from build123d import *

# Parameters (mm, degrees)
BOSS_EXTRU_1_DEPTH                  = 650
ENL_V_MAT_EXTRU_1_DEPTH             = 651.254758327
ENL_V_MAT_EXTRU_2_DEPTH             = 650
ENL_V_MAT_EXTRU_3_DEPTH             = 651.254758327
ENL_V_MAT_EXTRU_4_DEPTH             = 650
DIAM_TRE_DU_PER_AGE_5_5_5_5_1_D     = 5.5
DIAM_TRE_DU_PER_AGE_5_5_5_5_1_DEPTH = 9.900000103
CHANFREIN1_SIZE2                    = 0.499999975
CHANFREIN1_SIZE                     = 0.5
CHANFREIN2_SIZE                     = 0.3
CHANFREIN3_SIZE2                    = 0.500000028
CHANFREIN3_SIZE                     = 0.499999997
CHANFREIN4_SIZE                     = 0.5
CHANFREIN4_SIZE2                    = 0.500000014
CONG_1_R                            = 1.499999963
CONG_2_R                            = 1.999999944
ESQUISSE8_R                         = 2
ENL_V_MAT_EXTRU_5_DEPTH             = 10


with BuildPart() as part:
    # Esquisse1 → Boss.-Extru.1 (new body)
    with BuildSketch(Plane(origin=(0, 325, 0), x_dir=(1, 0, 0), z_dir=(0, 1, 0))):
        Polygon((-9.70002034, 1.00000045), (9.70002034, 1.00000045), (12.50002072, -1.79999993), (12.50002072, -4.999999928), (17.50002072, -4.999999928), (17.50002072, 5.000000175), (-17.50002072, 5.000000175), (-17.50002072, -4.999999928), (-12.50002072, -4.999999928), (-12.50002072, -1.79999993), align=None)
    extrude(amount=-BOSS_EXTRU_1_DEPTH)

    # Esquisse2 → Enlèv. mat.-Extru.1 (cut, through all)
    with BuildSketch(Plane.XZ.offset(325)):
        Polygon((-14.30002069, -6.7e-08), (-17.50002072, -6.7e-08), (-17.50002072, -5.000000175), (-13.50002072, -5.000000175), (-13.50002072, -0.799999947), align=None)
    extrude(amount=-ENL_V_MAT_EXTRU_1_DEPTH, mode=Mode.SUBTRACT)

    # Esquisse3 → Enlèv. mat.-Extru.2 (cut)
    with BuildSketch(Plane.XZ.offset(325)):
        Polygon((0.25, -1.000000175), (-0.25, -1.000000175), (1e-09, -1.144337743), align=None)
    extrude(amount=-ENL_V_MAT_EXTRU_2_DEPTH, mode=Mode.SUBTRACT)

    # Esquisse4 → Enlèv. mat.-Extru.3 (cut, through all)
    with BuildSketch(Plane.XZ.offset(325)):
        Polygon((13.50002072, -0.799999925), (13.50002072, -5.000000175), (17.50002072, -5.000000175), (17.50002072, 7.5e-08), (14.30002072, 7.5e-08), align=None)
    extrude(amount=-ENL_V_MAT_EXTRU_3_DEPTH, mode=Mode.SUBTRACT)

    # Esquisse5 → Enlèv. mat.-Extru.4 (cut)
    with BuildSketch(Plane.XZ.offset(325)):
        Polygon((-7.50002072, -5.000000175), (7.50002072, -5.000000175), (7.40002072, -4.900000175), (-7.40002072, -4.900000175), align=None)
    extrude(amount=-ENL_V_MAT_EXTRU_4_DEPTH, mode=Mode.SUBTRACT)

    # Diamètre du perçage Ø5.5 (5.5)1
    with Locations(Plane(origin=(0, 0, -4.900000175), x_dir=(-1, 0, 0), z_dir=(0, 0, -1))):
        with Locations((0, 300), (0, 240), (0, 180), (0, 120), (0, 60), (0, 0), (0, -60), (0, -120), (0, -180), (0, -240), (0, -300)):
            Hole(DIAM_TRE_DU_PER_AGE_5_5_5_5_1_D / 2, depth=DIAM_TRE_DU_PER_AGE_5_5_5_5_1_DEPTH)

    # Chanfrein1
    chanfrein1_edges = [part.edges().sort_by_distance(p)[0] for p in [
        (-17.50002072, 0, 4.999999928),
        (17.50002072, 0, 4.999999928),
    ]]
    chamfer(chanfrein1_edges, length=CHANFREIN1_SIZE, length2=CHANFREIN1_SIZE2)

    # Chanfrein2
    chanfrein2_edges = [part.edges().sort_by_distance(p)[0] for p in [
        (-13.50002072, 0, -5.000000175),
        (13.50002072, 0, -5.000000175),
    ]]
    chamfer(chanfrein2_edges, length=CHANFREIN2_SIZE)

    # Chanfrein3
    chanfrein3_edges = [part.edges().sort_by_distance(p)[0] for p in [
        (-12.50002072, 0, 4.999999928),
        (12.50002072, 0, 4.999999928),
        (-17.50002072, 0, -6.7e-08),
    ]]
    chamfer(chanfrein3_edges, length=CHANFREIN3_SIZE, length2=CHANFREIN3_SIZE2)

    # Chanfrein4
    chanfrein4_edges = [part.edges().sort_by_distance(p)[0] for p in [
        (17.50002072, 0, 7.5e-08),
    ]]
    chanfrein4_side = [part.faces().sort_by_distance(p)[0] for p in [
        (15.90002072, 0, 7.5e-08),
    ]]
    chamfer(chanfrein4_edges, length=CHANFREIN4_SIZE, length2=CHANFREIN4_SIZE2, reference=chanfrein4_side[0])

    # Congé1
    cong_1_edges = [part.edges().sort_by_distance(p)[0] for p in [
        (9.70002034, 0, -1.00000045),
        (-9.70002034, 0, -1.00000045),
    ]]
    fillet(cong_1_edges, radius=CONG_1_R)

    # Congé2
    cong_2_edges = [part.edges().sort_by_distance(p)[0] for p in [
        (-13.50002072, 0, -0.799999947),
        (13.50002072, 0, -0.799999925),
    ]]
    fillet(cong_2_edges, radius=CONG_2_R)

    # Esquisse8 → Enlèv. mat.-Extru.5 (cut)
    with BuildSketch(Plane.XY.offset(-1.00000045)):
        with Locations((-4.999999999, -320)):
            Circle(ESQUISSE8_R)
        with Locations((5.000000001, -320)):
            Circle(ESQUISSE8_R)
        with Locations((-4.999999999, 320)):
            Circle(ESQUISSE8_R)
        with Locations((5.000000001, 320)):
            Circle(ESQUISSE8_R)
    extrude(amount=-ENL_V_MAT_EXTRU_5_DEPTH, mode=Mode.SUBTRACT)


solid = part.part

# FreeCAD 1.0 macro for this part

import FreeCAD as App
import Part
import Sketcher
from FreeCAD import Vector
Q = App.Units.Quantity


def edges_at(feature, points):
    """Names of the edges that pass closest to the given points."""
    edges = feature.Shape.Edges
    near = lambda p: min(range(len(edges)), key=lambda i: edges[i].distToShape(Part.Vertex(*p))[0])
    return sorted({f"Edge{near(p) + 1}" for p in points})

doc = App.newDocument("Part")
body = doc.addObject("PartDesign::Body", "Body")

# Sketch on XZ plane
sketch1 = body.newObject("Sketcher::SketchObject", "Sketch")
sketch1.AttachmentSupport = (doc.getObject("XZ_Plane"), [""])
sketch1.MapMode = "FlatFace"
sketch1.AttachmentOffset = App.Placement(Vector(0, 0, -325), App.Rotation())
sketch1.addGeometry(Part.LineSegment(Vector(-9.7, -1, 0), Vector(9.7, -1, 0)), False)
sketch1.addGeometry(Part.LineSegment(Vector(9.7, -1, 0), Vector(12.5, 1.8, 0)), False)
sketch1.addGeometry(Part.LineSegment(Vector(12.5, 1.8, 0), Vector(12.5, 5, 0)), False)
sketch1.addGeometry(Part.LineSegment(Vector(12.5, 5, 0), Vector(17.5, 5, 0)), False)
sketch1.addGeometry(Part.LineSegment(Vector(17.5, 5, 0), Vector(17.5, -5, 0)), False)
sketch1.addGeometry(Part.LineSegment(Vector(17.5, -5, 0), Vector(-17.5, -5, 0)), False)
sketch1.addGeometry(Part.LineSegment(Vector(-17.5, -5, 0), Vector(-17.5, 5, 0)), False)
sketch1.addGeometry(Part.LineSegment(Vector(-17.5, 5, 0), Vector(-12.5, 5, 0)), False)
sketch1.addGeometry(Part.LineSegment(Vector(-12.5, 5, 0), Vector(-12.5, 1.8, 0)), False)
sketch1.addGeometry(Part.LineSegment(Vector(-12.5, 1.8, 0), Vector(-9.7, -1, 0)), False)
sketch1.addConstraint(Sketcher.Constraint("Coincident", 0, 2, 1, 1))
sketch1.addConstraint(Sketcher.Constraint("Coincident", 1, 2, 2, 1))
sketch1.addConstraint(Sketcher.Constraint("Coincident", 2, 2, 3, 1))
sketch1.addConstraint(Sketcher.Constraint("Coincident", 3, 2, 4, 1))
sketch1.addConstraint(Sketcher.Constraint("Coincident", 4, 2, 5, 1))
sketch1.addConstraint(Sketcher.Constraint("Coincident", 5, 2, 6, 1))
sketch1.addConstraint(Sketcher.Constraint("Coincident", 6, 2, 7, 1))
sketch1.addConstraint(Sketcher.Constraint("Coincident", 7, 2, 8, 1))
sketch1.addConstraint(Sketcher.Constraint("Coincident", 8, 2, 9, 1))
sketch1.addConstraint(Sketcher.Constraint("Coincident", 9, 2, 0, 1))
sketch1.addConstraint(Sketcher.Constraint("Horizontal", 0))
sketch1.addConstraint(Sketcher.Constraint("Vertical", 2))
sketch1.addConstraint(Sketcher.Constraint("Horizontal", 3))
sketch1.addConstraint(Sketcher.Constraint("Vertical", 4))
sketch1.addConstraint(Sketcher.Constraint("Horizontal", 5))
sketch1.addConstraint(Sketcher.Constraint("Vertical", 6))
sketch1.addConstraint(Sketcher.Constraint("Horizontal", 7))
sketch1.addConstraint(Sketcher.Constraint("Vertical", 8))
sketch1.addConstraint(Sketcher.Constraint("Symmetric", 3, 2, 5, 2, -1, 1))
sketch1.addConstraint(Sketcher.Constraint("Symmetric", 2, 2, 7, 2, -2))
sketch1.addConstraint(Sketcher.Constraint("Perpendicular", 1, 9))
sketch1.addConstraint(Sketcher.Constraint("Horizontal", 1, 2, 8, 2))
sketch1.addConstraint(Sketcher.Constraint("Equal", 1, 9))
sketch1.addConstraint(Sketcher.Constraint("DistanceX", 3, 1, 3, 2, 5.0))
sketch1.addConstraint(Sketcher.Constraint("DistanceY", 4, 2, 4, 1, 10.0))
sketch1.addConstraint(Sketcher.Constraint("DistanceY", 2, 1, 2, 2, 3.2))
sketch1.addConstraint(Sketcher.Constraint("DistanceY", 0, 2, -1, 1, 1.0))
sketch1.addConstraint(Sketcher.Constraint("DistanceX", 0, 1, 0, 2, 19.400041))
pad1 = body.newObject("PartDesign::Pad", "Pad")
pad1.Profile = sketch1
pad1.Length = 650

# Sketch on XZ plane
sketch2 = body.newObject("Sketcher::SketchObject", "Sketch001")
sketch2.AttachmentSupport = (doc.getObject("XZ_Plane"), [""])
sketch2.MapMode = "FlatFace"
sketch2.AttachmentOffset = App.Placement(Vector(0, 0, 325), App.Rotation())
sketch2.addGeometry(Part.LineSegment(Vector(-14.300021, 0, 0), Vector(-17.500021, 0, 0)), False)
sketch2.addGeometry(Part.LineSegment(Vector(-17.500021, 0, 0), Vector(-17.500021, -5, 0)), False)
sketch2.addGeometry(Part.LineSegment(Vector(-17.500021, -5, 0), Vector(-13.500021, -5, 0)), False)
sketch2.addGeometry(Part.LineSegment(Vector(-13.500021, -5, 0), Vector(-13.500021, -0.8, 0)), False)
sketch2.addGeometry(Part.LineSegment(Vector(-13.500021, -0.8, 0), Vector(-14.300021, 0, 0)), False)
sketch2.addConstraint(Sketcher.Constraint("Coincident", 0, 2, 1, 1))
sketch2.addConstraint(Sketcher.Constraint("Coincident", 1, 2, 2, 1))
sketch2.addConstraint(Sketcher.Constraint("Coincident", 2, 2, 3, 1))
sketch2.addConstraint(Sketcher.Constraint("Coincident", 3, 2, 4, 1))
sketch2.addConstraint(Sketcher.Constraint("Coincident", 4, 2, 0, 1))
sketch2.addConstraint(Sketcher.Constraint("Horizontal", 0))
sketch2.addConstraint(Sketcher.Constraint("Vertical", 1))
sketch2.addConstraint(Sketcher.Constraint("Horizontal", 2))
sketch2.addConstraint(Sketcher.Constraint("Vertical", 3))
sketch2.addConstraint(Sketcher.Constraint("PointOnObject", 0, 2, -1))
sketch2.addConstraint(Sketcher.Constraint("DistanceX", 2, 1, 2, 2, 4.0))
sketch2.addConstraint(Sketcher.Constraint("DistanceY", 1, 2, 1, 1, 5.0))
sketch2.addConstraint(Sketcher.Constraint("Angle", 4, Q("135.000003 deg")))
sketch2.addConstraint(Sketcher.Constraint("DistanceX", 0, 2, 0, 1, 3.2))
sketch2.addConstraint(Sketcher.Constraint("DistanceX", 0, 2, -1, 1, 17.500021))
pocket1 = body.newObject("PartDesign::Pocket", "Pocket")
pocket1.Profile = sketch2
pocket1.Type = "ThroughAll"

# Sketch on XZ plane
sketch3 = body.newObject("Sketcher::SketchObject", "Sketch002")
sketch3.AttachmentSupport = (doc.getObject("XZ_Plane"), [""])
sketch3.MapMode = "FlatFace"
sketch3.AttachmentOffset = App.Placement(Vector(0, 0, 325), App.Rotation())
sketch3.addGeometry(Part.LineSegment(Vector(0.25, -1, 0), Vector(-0.25, -1, 0)), False)
sketch3.addGeometry(Part.LineSegment(Vector(-0.25, -1, 0), Vector(0, -1.14, 0)), False)
sketch3.addGeometry(Part.LineSegment(Vector(0, -1.14, 0), Vector(0.25, -1, 0)), False)
sketch3.addConstraint(Sketcher.Constraint("Coincident", 0, 2, 1, 1))
sketch3.addConstraint(Sketcher.Constraint("Coincident", 1, 2, 2, 1))
sketch3.addConstraint(Sketcher.Constraint("Coincident", 2, 2, 0, 1))
sketch3.addConstraint(Sketcher.Constraint("Horizontal", 0))
sketch3.addConstraint(Sketcher.Constraint("PointOnObject", 1, 2, -2))
sketch3.addConstraint(Sketcher.Constraint("Equal", 1, 2))
sketch3.addConstraint(Sketcher.Constraint("Angle", 1, Q("-30 deg")))
sketch3.addConstraint(Sketcher.Constraint("DistanceX", 0, 2, 0, 1, 0.5))
sketch3.addConstraint(Sketcher.Constraint("DistanceY", 0, 2, -1, 1, 1.0))
pocket2 = body.newObject("PartDesign::Pocket", "Pocket001")
pocket2.Profile = sketch3
pocket2.Length = 650

# Sketch on XZ plane
sketch4 = body.newObject("Sketcher::SketchObject", "Sketch003")
sketch4.AttachmentSupport = (doc.getObject("XZ_Plane"), [""])
sketch4.MapMode = "FlatFace"
sketch4.AttachmentOffset = App.Placement(Vector(0, 0, 325), App.Rotation())
sketch4.addGeometry(Part.LineSegment(Vector(13.500021, -0.8, 0), Vector(13.500021, -5, 0)), False)
sketch4.addGeometry(Part.LineSegment(Vector(13.500021, -5, 0), Vector(17.500021, -5, 0)), False)
sketch4.addGeometry(Part.LineSegment(Vector(17.500021, -5, 0), Vector(17.500021, 0, 0)), False)
sketch4.addGeometry(Part.LineSegment(Vector(17.500021, 0, 0), Vector(14.300021, 0, 0)), False)
sketch4.addGeometry(Part.LineSegment(Vector(14.300021, 0, 0), Vector(13.500021, -0.8, 0)), False)
sketch4.addConstraint(Sketcher.Constraint("Coincident", 0, 2, 1, 1))
sketch4.addConstraint(Sketcher.Constraint("Coincident", 1, 2, 2, 1))
sketch4.addConstraint(Sketcher.Constraint("Coincident", 2, 2, 3, 1))
sketch4.addConstraint(Sketcher.Constraint("Coincident", 3, 2, 4, 1))
sketch4.addConstraint(Sketcher.Constraint("Coincident", 4, 2, 0, 1))
sketch4.addConstraint(Sketcher.Constraint("Vertical", 0))
sketch4.addConstraint(Sketcher.Constraint("Horizontal", 1))
sketch4.addConstraint(Sketcher.Constraint("Vertical", 2))
sketch4.addConstraint(Sketcher.Constraint("Horizontal", 3))
sketch4.addConstraint(Sketcher.Constraint("PointOnObject", 2, 2, -1))
sketch4.addConstraint(Sketcher.Constraint("DistanceX", 1, 1, 1, 2, 4.0))
sketch4.addConstraint(Sketcher.Constraint("DistanceY", 2, 1, 2, 2, 5.0))
sketch4.addConstraint(Sketcher.Constraint("Angle", 4, Q("-135 deg")))
sketch4.addConstraint(Sketcher.Constraint("DistanceX", 3, 2, 3, 1, 3.2))
sketch4.addConstraint(Sketcher.Constraint("DistanceX", -1, 1, 0, 2, 13.500021))
pocket3 = body.newObject("PartDesign::Pocket", "Pocket002")
pocket3.Profile = sketch4
pocket3.Type = "ThroughAll"

# Sketch on XZ plane
sketch5 = body.newObject("Sketcher::SketchObject", "Sketch004")
sketch5.AttachmentSupport = (doc.getObject("XZ_Plane"), [""])
sketch5.MapMode = "FlatFace"
sketch5.AttachmentOffset = App.Placement(Vector(0, 0, 325), App.Rotation())
sketch5.addGeometry(Part.LineSegment(Vector(-7.5, -5, 0), Vector(7.5, -5, 0)), False)
sketch5.addGeometry(Part.LineSegment(Vector(7.5, -5, 0), Vector(7.4, -4.9, 0)), False)
sketch5.addGeometry(Part.LineSegment(Vector(7.4, -4.9, 0), Vector(-7.4, -4.9, 0)), False)
sketch5.addGeometry(Part.LineSegment(Vector(-7.4, -4.9, 0), Vector(-7.5, -5, 0)), False)
sketch5.addConstraint(Sketcher.Constraint("Coincident", 0, 2, 1, 1))
sketch5.addConstraint(Sketcher.Constraint("Coincident", 1, 2, 2, 1))
sketch5.addConstraint(Sketcher.Constraint("Coincident", 2, 2, 3, 1))
sketch5.addConstraint(Sketcher.Constraint("Coincident", 3, 2, 0, 1))
sketch5.addConstraint(Sketcher.Constraint("Horizontal", 0))
sketch5.addConstraint(Sketcher.Constraint("Horizontal", 2))
sketch5.addConstraint(Sketcher.Constraint("Perpendicular", 1, 3))
sketch5.addConstraint(Sketcher.Constraint("Equal", 1, 3))
sketch5.addConstraint(Sketcher.Constraint("DistanceY", 0, 2, -1, 1, 5.0))
sketch5.addConstraint(Sketcher.Constraint("DistanceY", 1, 2, -1, 1, 4.9))
sketch5.addConstraint(Sketcher.Constraint("DistanceX", 0, 1, 0, 2, 15.000041))
sketch5.addConstraint(Sketcher.Constraint("DistanceX", -1, 1, 0, 2, 7.500021))
pocket4 = body.newObject("PartDesign::Pocket", "Pocket003")
pocket4.Profile = sketch5
pocket4.Length = 650

# Sketch on XY plane
sketch6 = body.newObject("Sketcher::SketchObject", "Sketch005")
sketch6.AttachmentSupport = (doc.getObject("XY_Plane"), [""])
sketch6.MapMode = "FlatFace"
sketch6.AttachmentOffset = App.Placement(Vector(0, 0, -4.9), App.Rotation())
sketch6.addGeometry(Part.Circle(Vector(0, 300, 0), Vector(0, 0, 1), 2.8), False)
sketch6.addGeometry(Part.Circle(Vector(0, 240, 0), Vector(0, 0, 1), 2.8), False)
sketch6.addGeometry(Part.Circle(Vector(0, 180, 0), Vector(0, 0, 1), 2.8), False)
sketch6.addGeometry(Part.Circle(Vector(0, 120, 0), Vector(0, 0, 1), 2.8), False)
sketch6.addGeometry(Part.Circle(Vector(0, 60, 0), Vector(0, 0, 1), 2.8), False)
sketch6.addGeometry(Part.Circle(Vector(0, 0, 0), Vector(0, 0, 1), 2.8), False)
sketch6.addGeometry(Part.Circle(Vector(0, -60, 0), Vector(0, 0, 1), 2.8), False)
sketch6.addGeometry(Part.Circle(Vector(0, -120, 0), Vector(0, 0, 1), 2.8), False)
sketch6.addGeometry(Part.Circle(Vector(0, -180, 0), Vector(0, 0, 1), 2.8), False)
sketch6.addGeometry(Part.Circle(Vector(0, -240, 0), Vector(0, 0, 1), 2.8), False)
sketch6.addGeometry(Part.Circle(Vector(0, -300, 0), Vector(0, 0, 1), 2.8), False)
sketch6.addConstraint(Sketcher.Constraint("Coincident", 5, 3, -1, 1))
sketch6.addConstraint(Sketcher.Constraint("Equal", 0, 1))
sketch6.addConstraint(Sketcher.Constraint("Equal", 1, 2))
sketch6.addConstraint(Sketcher.Constraint("Equal", 2, 3))
sketch6.addConstraint(Sketcher.Constraint("Equal", 3, 4))
sketch6.addConstraint(Sketcher.Constraint("Equal", 4, 5))
sketch6.addConstraint(Sketcher.Constraint("Equal", 5, 6))
sketch6.addConstraint(Sketcher.Constraint("Equal", 6, 7))
sketch6.addConstraint(Sketcher.Constraint("Equal", 7, 8))
sketch6.addConstraint(Sketcher.Constraint("Equal", 8, 9))
sketch6.addConstraint(Sketcher.Constraint("Equal", 9, 10))
sketch6.addConstraint(Sketcher.Constraint("Symmetric", 4, 3, 6, 3, -1, 1))
sketch6.addConstraint(Sketcher.Constraint("Symmetric", 3, 3, 7, 3, -1, 1))
sketch6.addConstraint(Sketcher.Constraint("Symmetric", 2, 3, 8, 3, -1, 1))
sketch6.addConstraint(Sketcher.Constraint("Symmetric", 1, 3, 9, 3, -1, 1))
sketch6.addConstraint(Sketcher.Constraint("Symmetric", 0, 3, 10, 3, -1, 1))
sketch6.addConstraint(Sketcher.Constraint("PointOnObject", 0, 3, -2))
sketch6.addConstraint(Sketcher.Constraint("PointOnObject", 1, 3, -2))
sketch6.addConstraint(Sketcher.Constraint("PointOnObject", 2, 3, -2))
sketch6.addConstraint(Sketcher.Constraint("PointOnObject", 3, 3, -2))
sketch6.addConstraint(Sketcher.Constraint("PointOnObject", 4, 3, -2))
sketch6.addConstraint(Sketcher.Constraint("Diameter", 0, 5.5))
sketch6.addConstraint(Sketcher.Constraint("DistanceY", -1, 1, 0, 3, 300.0))
sketch6.addConstraint(Sketcher.Constraint("DistanceY", -1, 1, 1, 3, 240.0))
sketch6.addConstraint(Sketcher.Constraint("DistanceY", -1, 1, 2, 3, 180.0))
sketch6.addConstraint(Sketcher.Constraint("DistanceY", -1, 1, 3, 3, 120.0))
sketch6.addConstraint(Sketcher.Constraint("DistanceY", -1, 1, 4, 3, 60.0))
doc.recompute()
hole = body.newObject("PartDesign::Hole", "Hole")
hole.Profile = sketch6
hole.ThreadType = "None"
hole.Diameter = 5.5
hole.DepthType = "Dimension"
hole.Depth = 9.9
hole.DrillPoint = "Flat"
hole.Reversed = True
doc.recompute()

chamfer = body.newObject("PartDesign::Chamfer", "Chamfer")
chamfer.Base = (hole, edges_at(hole, [(-17.5, 0, 5), (17.5, 0, 5)]))
chamfer.ChamferType = "Two distances"
chamfer.Size = 0.5
chamfer.Size2 = 0.5
doc.recompute()

chamfer2 = body.newObject("PartDesign::Chamfer", "Chamfer001")
chamfer2.Base = (chamfer, edges_at(chamfer, [(-13.5, 0, -5), (13.5, 0, -5)]))
chamfer2.Size = 0.3
doc.recompute()

chamfer3 = body.newObject("PartDesign::Chamfer", "Chamfer002")
chamfer3.Base = (chamfer2, edges_at(chamfer2, [(-12.5, 0, 5), (12.5, 0, 5), (-17.5, 0, 0)]))
chamfer3.ChamferType = "Two distances"
chamfer3.Size = 0.5
chamfer3.Size2 = 0.5
doc.recompute()

chamfer4 = body.newObject("PartDesign::Chamfer", "Chamfer003")
chamfer4.Base = (chamfer3, edges_at(chamfer3, [(17.5, 0, 0)]))
chamfer4.ChamferType = "Two distances"
chamfer4.Size = 0.5
chamfer4.Size2 = 0.5
doc.recompute()

fillet = body.newObject("PartDesign::Fillet", "Fillet")
fillet.Base = (chamfer4, edges_at(chamfer4, [(9.7, 0, -1), (-9.7, 0, -1)]))
fillet.Radius = 1.5
doc.recompute()

fillet2 = body.newObject("PartDesign::Fillet", "Fillet001")
fillet2.Base = (fillet, edges_at(fillet, [(-13.5, 0, -0.8), (13.5, 0, -0.8)]))
fillet2.Radius = 2

# Sketch on XY plane
sketch7 = body.newObject("Sketcher::SketchObject", "Sketch006")
sketch7.AttachmentSupport = (doc.getObject("XY_Plane"), [""])
sketch7.MapMode = "FlatFace"
sketch7.AttachmentOffset = App.Placement(Vector(0, 0, -1), App.Rotation())
sketch7.addGeometry(Part.Circle(Vector(-5, -320, 0), Vector(0, 0, 1), 2), False)
sketch7.addGeometry(Part.Circle(Vector(5, -320, 0), Vector(0, 0, 1), 2), False)
sketch7.addGeometry(Part.Circle(Vector(-5, 320, 0), Vector(0, 0, 1), 2), False)
sketch7.addGeometry(Part.Circle(Vector(5, 320, 0), Vector(0, 0, 1), 2), False)
sketch7.addConstraint(Sketcher.Constraint("Equal", 0, 1))
sketch7.addConstraint(Sketcher.Constraint("Equal", 1, 2))
sketch7.addConstraint(Sketcher.Constraint("Equal", 2, 3))
sketch7.addConstraint(Sketcher.Constraint("Symmetric", 1, 3, 2, 3, -1, 1))
sketch7.addConstraint(Sketcher.Constraint("Symmetric", 0, 3, 3, 3, -1, 1))
sketch7.addConstraint(Sketcher.Constraint("Symmetric", 0, 3, 1, 3, -2))
sketch7.addConstraint(Sketcher.Constraint("Diameter", 0, 4.0))
sketch7.addConstraint(Sketcher.Constraint("DistanceX", 0, 3, -1, 1, 5.0))
sketch7.addConstraint(Sketcher.Constraint("DistanceY", 0, 3, -1, 1, 320.0))
pocket5 = body.newObject("PartDesign::Pocket", "Pocket004")
pocket5.Profile = sketch7
pocket5.Length = 10

doc.recompute()
